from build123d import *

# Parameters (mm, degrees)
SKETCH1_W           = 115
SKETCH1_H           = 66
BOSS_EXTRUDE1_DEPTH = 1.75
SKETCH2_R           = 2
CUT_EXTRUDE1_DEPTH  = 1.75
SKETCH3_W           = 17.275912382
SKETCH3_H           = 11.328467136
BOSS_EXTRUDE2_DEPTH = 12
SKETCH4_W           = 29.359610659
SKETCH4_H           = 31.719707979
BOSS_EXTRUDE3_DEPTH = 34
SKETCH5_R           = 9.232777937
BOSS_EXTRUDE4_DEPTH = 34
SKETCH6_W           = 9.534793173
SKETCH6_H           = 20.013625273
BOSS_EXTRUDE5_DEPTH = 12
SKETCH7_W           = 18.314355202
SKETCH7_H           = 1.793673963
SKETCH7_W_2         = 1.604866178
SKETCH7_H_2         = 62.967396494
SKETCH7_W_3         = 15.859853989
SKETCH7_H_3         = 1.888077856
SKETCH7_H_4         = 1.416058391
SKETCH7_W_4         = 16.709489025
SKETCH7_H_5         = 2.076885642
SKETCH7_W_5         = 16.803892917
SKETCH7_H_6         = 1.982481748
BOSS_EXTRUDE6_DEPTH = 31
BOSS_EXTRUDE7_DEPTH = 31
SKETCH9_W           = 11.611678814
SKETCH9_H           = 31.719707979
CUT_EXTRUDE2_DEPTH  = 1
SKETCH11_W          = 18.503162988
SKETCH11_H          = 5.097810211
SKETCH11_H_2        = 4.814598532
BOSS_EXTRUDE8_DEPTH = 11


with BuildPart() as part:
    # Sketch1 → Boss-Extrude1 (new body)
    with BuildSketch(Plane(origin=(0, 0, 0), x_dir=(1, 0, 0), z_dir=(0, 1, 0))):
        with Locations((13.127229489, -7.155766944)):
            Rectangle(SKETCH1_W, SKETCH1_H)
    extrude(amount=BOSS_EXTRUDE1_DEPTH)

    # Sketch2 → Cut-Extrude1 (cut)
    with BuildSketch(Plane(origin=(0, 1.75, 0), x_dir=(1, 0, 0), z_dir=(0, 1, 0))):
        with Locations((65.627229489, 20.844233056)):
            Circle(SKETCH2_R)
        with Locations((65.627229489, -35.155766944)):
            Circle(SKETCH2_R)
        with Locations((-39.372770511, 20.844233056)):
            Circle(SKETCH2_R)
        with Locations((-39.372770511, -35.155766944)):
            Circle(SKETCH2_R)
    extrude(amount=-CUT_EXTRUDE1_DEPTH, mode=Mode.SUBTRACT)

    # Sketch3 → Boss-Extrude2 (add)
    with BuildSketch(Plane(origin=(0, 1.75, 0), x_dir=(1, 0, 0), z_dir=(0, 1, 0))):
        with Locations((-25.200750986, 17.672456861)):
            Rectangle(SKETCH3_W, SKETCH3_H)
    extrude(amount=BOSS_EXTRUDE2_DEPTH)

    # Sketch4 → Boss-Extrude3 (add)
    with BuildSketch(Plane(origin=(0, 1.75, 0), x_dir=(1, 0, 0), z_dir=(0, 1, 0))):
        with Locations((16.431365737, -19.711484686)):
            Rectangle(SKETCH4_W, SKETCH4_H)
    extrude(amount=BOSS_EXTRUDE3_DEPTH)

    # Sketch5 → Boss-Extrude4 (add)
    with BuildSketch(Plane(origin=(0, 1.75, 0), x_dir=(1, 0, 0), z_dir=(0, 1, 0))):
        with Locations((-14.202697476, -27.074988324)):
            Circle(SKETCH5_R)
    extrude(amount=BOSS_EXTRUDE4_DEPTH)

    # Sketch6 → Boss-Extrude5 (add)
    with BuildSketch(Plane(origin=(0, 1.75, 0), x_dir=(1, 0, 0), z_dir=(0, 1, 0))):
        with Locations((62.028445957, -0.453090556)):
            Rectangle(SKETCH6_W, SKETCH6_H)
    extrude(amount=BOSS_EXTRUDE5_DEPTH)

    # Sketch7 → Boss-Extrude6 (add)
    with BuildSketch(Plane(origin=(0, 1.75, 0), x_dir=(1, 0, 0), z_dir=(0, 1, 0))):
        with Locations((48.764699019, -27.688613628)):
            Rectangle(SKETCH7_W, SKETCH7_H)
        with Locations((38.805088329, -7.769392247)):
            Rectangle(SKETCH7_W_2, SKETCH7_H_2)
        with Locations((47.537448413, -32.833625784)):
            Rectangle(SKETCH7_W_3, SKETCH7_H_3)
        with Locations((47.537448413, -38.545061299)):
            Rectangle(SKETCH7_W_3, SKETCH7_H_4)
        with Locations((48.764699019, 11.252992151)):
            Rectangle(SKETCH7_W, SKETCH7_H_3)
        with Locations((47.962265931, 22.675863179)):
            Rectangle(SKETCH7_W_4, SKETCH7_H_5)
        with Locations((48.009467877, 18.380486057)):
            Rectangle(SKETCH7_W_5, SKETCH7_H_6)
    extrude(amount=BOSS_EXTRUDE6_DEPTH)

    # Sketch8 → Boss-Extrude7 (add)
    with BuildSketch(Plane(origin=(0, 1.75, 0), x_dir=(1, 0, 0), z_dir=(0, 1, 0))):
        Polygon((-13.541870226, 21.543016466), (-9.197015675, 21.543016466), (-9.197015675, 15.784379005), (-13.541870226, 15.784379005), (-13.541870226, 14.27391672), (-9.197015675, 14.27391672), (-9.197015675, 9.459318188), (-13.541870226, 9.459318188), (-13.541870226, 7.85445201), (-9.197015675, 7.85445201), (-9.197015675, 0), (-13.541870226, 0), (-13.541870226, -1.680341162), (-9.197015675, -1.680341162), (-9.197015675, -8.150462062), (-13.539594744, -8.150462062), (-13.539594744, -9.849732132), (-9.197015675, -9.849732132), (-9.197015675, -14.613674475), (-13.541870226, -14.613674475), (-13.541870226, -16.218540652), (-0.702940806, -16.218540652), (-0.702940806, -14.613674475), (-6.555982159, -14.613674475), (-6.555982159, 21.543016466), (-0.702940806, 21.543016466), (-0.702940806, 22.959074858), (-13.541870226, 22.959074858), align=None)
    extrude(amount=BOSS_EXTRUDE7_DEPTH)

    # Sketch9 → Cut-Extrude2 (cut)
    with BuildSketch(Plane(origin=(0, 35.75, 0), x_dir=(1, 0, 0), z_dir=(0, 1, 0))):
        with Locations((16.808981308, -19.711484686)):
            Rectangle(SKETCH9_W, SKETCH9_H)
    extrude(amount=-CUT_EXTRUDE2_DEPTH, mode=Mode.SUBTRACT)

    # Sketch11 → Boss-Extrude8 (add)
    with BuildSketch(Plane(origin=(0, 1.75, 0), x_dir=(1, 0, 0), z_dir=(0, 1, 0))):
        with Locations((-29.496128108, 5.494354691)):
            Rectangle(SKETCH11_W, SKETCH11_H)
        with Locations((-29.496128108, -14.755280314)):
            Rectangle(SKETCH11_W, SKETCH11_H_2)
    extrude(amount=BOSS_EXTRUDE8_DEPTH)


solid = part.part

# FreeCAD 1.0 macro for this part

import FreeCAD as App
import Part
import Sketcher
Q = App.Units.Quantity


def add_polygon(sketch, points):
    """Adds a closed chain of lines whose ends are joined by coincident constraints."""
    first, n = sketch.GeometryCount, len(points)
    for a, b in zip(points, points[1:] + points[:1]):
        sketch.addGeometry(Part.LineSegment(App.Vector(*a, 0), App.Vector(*b, 0)), False)
    for i in range(n):
        sketch.addConstraint(Sketcher.Constraint("Coincident", first + i, 2, first + (i + 1) % n, 1))

doc = App.newDocument("Part")
body = doc.addObject("PartDesign::Body", "Body")

# Sketch on XZ plane
sketch1 = doc.addObject("Sketcher::SketchObject", "Sketch")
body.addObject(sketch1)
sketch1.AttachmentSupport = (doc.XZ_Plane, [""])
sketch1.MapMode = "FlatFace"
add_polygon(sketch1, [(-44, -26), (-44, 40), (71, 40), (71, -26)])  # lines 0-3
sketch1.addConstraint([
    Sketcher.Constraint("Vertical", 0),
    Sketcher.Constraint("Horizontal", 1),
    Sketcher.Constraint("Vertical", 2),
    Sketcher.Constraint("Horizontal", 3),
    Sketcher.Constraint("DistanceX", 1, 1, 1, 2, Q("115 mm")),
    Sketcher.Constraint("DistanceY", 0, 1, 0, 2, Q("66 mm")),
    Sketcher.Constraint("DistanceX", 0, 2, -1, 1, Q("44.372771 mm")),
    Sketcher.Constraint("DistanceY", -1, 1, 0, 2, Q("40.155767 mm")),
])
pad1 = doc.addObject("PartDesign::Pad", "Pad")
body.addObject(pad1)
pad1.Profile = sketch1
pad1.Length = 1.75
pad1.Reversed = True

# Sketch on XZ plane
sketch2 = doc.addObject("Sketcher::SketchObject", "Sketch001")
body.addObject(sketch2)
sketch2.AttachmentSupport = (doc.XZ_Plane, [""])
sketch2.MapMode = "FlatFace"
sketch2.AttachmentOffset = App.Placement(App.Vector(0, 0, -1.75), App.Rotation())
sketch2.addGeometry([
    Part.Circle(App.Vector(65.6, -20.8, 0), App.Vector(0, 0, 1), 2),
    Part.Circle(App.Vector(65.6, 35.2, 0), App.Vector(0, 0, 1), 2),
    Part.Circle(App.Vector(-39.4, -20.8, 0), App.Vector(0, 0, 1), 2),
    Part.Circle(App.Vector(-39.4, 35.2, 0), App.Vector(0, 0, 1), 2),
], False)
sketch2.addConstraint([
    Sketcher.Constraint("Equal", 0, 1),
    Sketcher.Constraint("Equal", 1, 2),
    Sketcher.Constraint("Equal", 2, 3),
    Sketcher.Constraint("Horizontal", 0, 3, 2, 3),
    Sketcher.Constraint("Horizontal", 1, 3, 3, 3),
    Sketcher.Constraint("Vertical", 0, 3, 1, 3),
    Sketcher.Constraint("Vertical", 2, 3, 3, 3),
    Sketcher.Constraint("Diameter", 0, Q("4 mm")),
    Sketcher.Constraint("DistanceY", 0, 3, 1, 3, Q("56 mm")),
    Sketcher.Constraint("DistanceX", 2, 3, 0, 3, Q("105 mm")),
    Sketcher.Constraint("DistanceX", -1, 1, 0, 3, Q("65.627229 mm")),
    Sketcher.Constraint("DistanceY", 0, 3, -1, 1, Q("20.844233 mm")),
])
pocket1 = doc.addObject("PartDesign::Pocket", "Pocket")
body.addObject(pocket1)
pocket1.Profile = sketch2
pocket1.Length = 1.75
pocket1.Reversed = True

# Sketch on XZ plane
sketch3 = doc.addObject("Sketcher::SketchObject", "Sketch002")
body.addObject(sketch3)
sketch3.AttachmentSupport = (doc.XZ_Plane, [""])
sketch3.MapMode = "FlatFace"
sketch3.AttachmentOffset = App.Placement(App.Vector(0, 0, -1.75), App.Rotation())
add_polygon(sketch3, [(-34, -23), (-34, -12), (-17, -12), (-17, -23)])  # lines 0-3
sketch3.addConstraint([
    Sketcher.Constraint("Vertical", 0),
    Sketcher.Constraint("Horizontal", 1),
    Sketcher.Constraint("Vertical", 2),
    Sketcher.Constraint("Horizontal", 3),
    Sketcher.Constraint("DistanceX", 1, 1, 1, 2, Q("17.275912 mm")),
    Sketcher.Constraint("DistanceY", 0, 1, 0, 2, Q("11.328467 mm")),
    Sketcher.Constraint("DistanceY", 2, 2, -1, 1, Q("23.33669 mm")),
    Sketcher.Constraint("DistanceX", 0, 2, -1, 1, Q("33.838707 mm")),
])
pad2 = doc.addObject("PartDesign::Pad", "Pad001")
body.addObject(pad2)
pad2.Profile = sketch3
pad2.Length = 12
pad2.Reversed = True

# Sketch on XZ plane
sketch4 = doc.addObject("Sketcher::SketchObject", "Sketch003")
body.addObject(sketch4)
sketch4.AttachmentSupport = (doc.XZ_Plane, [""])
sketch4.MapMode = "FlatFace"
sketch4.AttachmentOffset = App.Placement(App.Vector(0, 0, -1.75), App.Rotation())
add_polygon(sketch4, [(2, 4), (2, 36), (31, 36), (31, 4)])  # lines 0-3
sketch4.addConstraint([
    Sketcher.Constraint("Vertical", 0),
    Sketcher.Constraint("Horizontal", 1),
    Sketcher.Constraint("Vertical", 2),
    Sketcher.Constraint("Horizontal", 3),
    Sketcher.Constraint("DistanceX", 1, 1, 1, 2, Q("29.359611 mm")),
    Sketcher.Constraint("DistanceY", 0, 1, 0, 2, Q("31.719708 mm")),
    Sketcher.Constraint("DistanceX", -1, 1, 0, 2, Q("1.75156 mm")),
    Sketcher.Constraint("DistanceY", -1, 1, 0, 2, Q("35.571339 mm")),
])
pad3 = doc.addObject("PartDesign::Pad", "Pad002")
body.addObject(pad3)
pad3.Profile = sketch4
pad3.Length = 34
pad3.Reversed = True

# Sketch on XZ plane
sketch5 = doc.addObject("Sketcher::SketchObject", "Sketch004")
body.addObject(sketch5)
sketch5.AttachmentSupport = (doc.XZ_Plane, [""])
sketch5.MapMode = "FlatFace"
sketch5.AttachmentOffset = App.Placement(App.Vector(0, 0, -1.75), App.Rotation())
sketch5.addGeometry(Part.Circle(App.Vector(-14, 27, 0), App.Vector(0, 0, 1), 9), False)
sketch5.addConstraint([
    Sketcher.Constraint("Diameter", 0, Q("18.465556 mm")),
    Sketcher.Constraint("DistanceY", -1, 1, 0, 3, Q("27.074988 mm")),
    Sketcher.Constraint("DistanceX", 0, 3, -1, 1, Q("14.202697 mm")),
])
pad4 = doc.addObject("PartDesign::Pad", "Pad003")
body.addObject(pad4)
pad4.Profile = sketch5
pad4.Length = 34
pad4.Reversed = True

# Sketch on XZ plane
sketch6 = doc.addObject("Sketcher::SketchObject", "Sketch005")
body.addObject(sketch6)
sketch6.AttachmentSupport = (doc.XZ_Plane, [""])
sketch6.MapMode = "FlatFace"
sketch6.AttachmentOffset = App.Placement(App.Vector(0, 0, -1.75), App.Rotation())
add_polygon(sketch6, [(57, -10), (57, 10), (67, 10), (67, -10)])  # lines 0-3
sketch6.addConstraint([
    Sketcher.Constraint("Vertical", 0),
    Sketcher.Constraint("Horizontal", 1),
    Sketcher.Constraint("Vertical", 2),
    Sketcher.Constraint("Horizontal", 3),
    Sketcher.Constraint("DistanceX", 1, 1, 1, 2, Q("9.534793 mm")),
    Sketcher.Constraint("DistanceY", 0, 1, 0, 2, Q("20.013625 mm")),
    Sketcher.Constraint("DistanceX", -1, 1, 0, 2, Q("57.261049 mm")),
    Sketcher.Constraint("DistanceY", -1, 1, 0, 2, Q("10.459903 mm")),
])
pad5 = doc.addObject("PartDesign::Pad", "Pad004")
body.addObject(pad5)
pad5.Profile = sketch6
pad5.Length = 12
pad5.Reversed = True

# Sketch on XZ plane
sketch7 = doc.addObject("Sketcher::SketchObject", "Sketch006")
body.addObject(sketch7)
sketch7.AttachmentSupport = (doc.XZ_Plane, [""])
sketch7.MapMode = "FlatFace"
sketch7.AttachmentOffset = App.Placement(App.Vector(0, 0, -1.75), App.Rotation())
add_polygon(sketch7, [(39.6, 28.6), (57.9, 28.6), (57.9, 26.8), (39.6, 26.8), (39.6, -10.3), (57.9, -10.3), (57.9, -12.2), (39.6, -12.2), (39.6, -17.4), (56.4, -17.4), (56.4, -19.4), (39.6, -19.4), (39.6, -21.6), (56.3, -21.6), (56.3, -23.7), (38, -23.7), (38, 39.3), (39.6, 39.3), (55.5, 39.3), (55.5, 37.8), (39.6, 37.8), (39.6, 33.8), (55.5, 33.8), (55.5, 31.9), (39.6, 31.9)])  # lines 0-24
sketch7.addConstraint([
    Sketcher.Constraint("Horizontal", 0),
    Sketcher.Constraint("Vertical", 1),
    Sketcher.Constraint("Horizontal", 2),
    Sketcher.Constraint("Vertical", 3),
    Sketcher.Constraint("Horizontal", 4),
    Sketcher.Constraint("Vertical", 5),
    Sketcher.Constraint("Horizontal", 6),
    Sketcher.Constraint("Vertical", 7),
    Sketcher.Constraint("Horizontal", 8),
    Sketcher.Constraint("Vertical", 9),
    Sketcher.Constraint("Horizontal", 10),
    Sketcher.Constraint("Vertical", 11),
    Sketcher.Constraint("Horizontal", 12),
    Sketcher.Constraint("Vertical", 13),
    Sketcher.Constraint("Horizontal", 14),
    Sketcher.Constraint("Vertical", 15),
    Sketcher.Constraint("Horizontal", 16),
    Sketcher.Constraint("Horizontal", 17),
    Sketcher.Constraint("Vertical", 18),
    Sketcher.Constraint("Horizontal", 19),
    Sketcher.Constraint("Vertical", 20),
    Sketcher.Constraint("Horizontal", 21),
    Sketcher.Constraint("Vertical", 22),
    Sketcher.Constraint("Horizontal", 23),
    Sketcher.Constraint("Vertical", 24),
    Sketcher.Constraint("Vertical", 1, 2, 4, 2),
    Sketcher.Constraint("Vertical", 3, 2, 6, 2),
    Sketcher.Constraint("Vertical", 7, 2, 10, 2),
    Sketcher.Constraint("Vertical", 11, 2, 16, 2),
    Sketcher.Constraint("Vertical", 16, 2, 19, 2),
    Sketcher.Constraint("Vertical", 18, 2, 21, 2),
    Sketcher.Constraint("Vertical", 20, 2, 23, 2),
    Sketcher.Constraint("Equal", 6, 14),
    Sketcher.Constraint("Equal", 5, 22),
    Sketcher.Constraint("DistanceX", 12, 1, 12, 2, Q("16.709489 mm")),
    Sketcher.Constraint("DistanceY", 3, 2, 3, 1, Q("37.10073 mm")),
    Sketcher.Constraint("DistanceY", 9, 2, 9, 1, Q("1.982482 mm")),
    Sketcher.Constraint("DistanceY", 18, 2, 18, 1, Q("1.416058 mm")),
    Sketcher.Constraint("DistanceX", 17, 2, 0, 2, Q("2.454501 mm")),
    Sketcher.Constraint("DistanceX", 0, 1, 0, 2, Q("18.314355 mm")),
    Sketcher.Constraint("DistanceX", 8, 1, 8, 2, Q("16.803893 mm")),
    Sketcher.Constraint("DistanceY", 1, 2, 1, 1, Q("1.793674 mm")),
    Sketcher.Constraint("DistanceY", 5, 2, 5, 1, Q("1.888078 mm")),
    Sketcher.Constraint("DistanceY", 7, 2, 7, 1, Q("5.192214 mm")),
    Sketcher.Constraint("DistanceY", 11, 2, 11, 1, Q("2.265693 mm")),
    Sketcher.Constraint("DistanceY", 13, 2, 13, 1, Q("2.076886 mm")),
    Sketcher.Constraint("DistanceY", 15, 1, 15, 2, Q("62.967396 mm")),
    Sketcher.Constraint("DistanceY", 20, 2, 20, 1, Q("4.059367 mm")),
    Sketcher.Constraint("DistanceY", -1, 1, 0, 2, Q("28.585451 mm")),
    Sketcher.Constraint("DistanceX", -1, 1, 2, 2, Q("39.607521 mm")),
])
pad6 = doc.addObject("PartDesign::Pad", "Pad005")
body.addObject(pad6)
pad6.Profile = sketch7
pad6.Length = 31
pad6.Reversed = True

# Sketch on XZ plane
sketch8 = doc.addObject("Sketcher::SketchObject", "Sketch007")
body.addObject(sketch8)
sketch8.AttachmentSupport = (doc.XZ_Plane, [""])
sketch8.MapMode = "FlatFace"
sketch8.AttachmentOffset = App.Placement(App.Vector(0, 0, -1.75), App.Rotation())
add_polygon(sketch8, [(-13.5, -21.5), (-9.2, -21.5), (-9.2, -15.8), (-13.5, -15.8), (-13.5, -14.3), (-9.2, -14.3), (-9.2, -9.5), (-13.5, -9.5), (-13.5, -7.9), (-9.2, -7.9), (-9.2, 0), (-13.5, 0), (-13.5, 1.7), (-9.2, 1.7), (-9.2, 8.2), (-13.5, 8.2), (-13.5, 9.8), (-9.2, 9.8), (-9.2, 14.6), (-13.5, 14.6), (-13.5, 16.2), (-0.7, 16.2), (-0.7, 14.6), (-6.6, 14.6), (-6.6, -21.5), (-0.7, -21.5), (-0.7, -23), (-13.5, -23)])  # lines 0-27
sketch8.addConstraint([
    Sketcher.Constraint("Horizontal", 0),
    Sketcher.Constraint("Vertical", 1),
    Sketcher.Constraint("Horizontal", 2),
    Sketcher.Constraint("Vertical", 3),
    Sketcher.Constraint("Horizontal", 4),
    Sketcher.Constraint("Vertical", 5),
    Sketcher.Constraint("Horizontal", 6),
    Sketcher.Constraint("Vertical", 7),
    Sketcher.Constraint("Horizontal", 8),
    Sketcher.Constraint("Vertical", 9),
    Sketcher.Constraint("Horizontal", 10),
    Sketcher.Constraint("Vertical", 11),
    Sketcher.Constraint("Horizontal", 12),
    Sketcher.Constraint("Vertical", 13),
    Sketcher.Constraint("Horizontal", 14),
    Sketcher.Constraint("Vertical", 15),
    Sketcher.Constraint("Horizontal", 16),
    Sketcher.Constraint("Vertical", 17),
    Sketcher.Constraint("Horizontal", 18),
    Sketcher.Constraint("Vertical", 19),
    Sketcher.Constraint("Horizontal", 20),
    Sketcher.Constraint("Vertical", 21),
    Sketcher.Constraint("Horizontal", 22),
    Sketcher.Constraint("Vertical", 23),
    Sketcher.Constraint("Horizontal", 24),
    Sketcher.Constraint("Vertical", 25),
    Sketcher.Constraint("Horizontal", 26),
    Sketcher.Constraint("Vertical", 27),
    Sketcher.Constraint("PointOnObject", 9, 2, -1),
    Sketcher.Constraint("Horizontal", 18, 2, 21, 2),
    Sketcher.Constraint("Horizontal", 0, 2, 23, 2),
    Sketcher.Constraint("Vertical", 1, 2, 4, 2),
    Sketcher.Constraint("Vertical", 3, 2, 6, 2),
    Sketcher.Constraint("Vertical", 5, 2, 8, 2),
    Sketcher.Constraint("Vertical", 7, 2, 10, 2),
    Sketcher.Constraint("Vertical", 9, 2, 12, 2),
    Sketcher.Constraint("Vertical", 13, 2, 16, 2),
    Sketcher.Constraint("Vertical", 11, 2, 18, 2),
    Sketcher.Constraint("Vertical", 21, 2, 24, 2),
    Sketcher.Constraint("Vertical", 19, 2, 26, 2),
    Sketcher.Constraint("Equal", 7, 19),
    Sketcher.Constraint("DistanceY", 5, 1, 5, 2, Q("4.814599 mm")),
    Sketcher.Constraint("DistanceX", 14, 2, 14, 1, Q("4.342579 mm")),
    Sketcher.Constraint("DistanceX", 20, 1, 20, 2, Q("12.838929 mm")),
    Sketcher.Constraint("DistanceX", 22, 2, 22, 1, Q("5.853041 mm")),
    Sketcher.Constraint("DistanceY", 11, 1, 11, 2, Q("1.680341 mm")),
    Sketcher.Constraint("DistanceY", 13, 1, 13, 2, Q("6.470121 mm")),
    Sketcher.Constraint("DistanceY", 15, 1, 15, 2, Q("1.69927 mm")),
    Sketcher.Constraint("DistanceY", 23, 2, 23, 1, Q("36.156691 mm")),
    Sketcher.Constraint("DistanceY", 25, 2, 25, 1, Q("1.416058 mm")),
    Sketcher.Constraint("DistanceY", 0, 2, 3, 2, Q("7.2691 mm")),
    Sketcher.Constraint("DistanceX", 0, 1, 0, 2, Q("4.344855 mm")),
    Sketcher.Constraint("DistanceY", 1, 1, 1, 2, Q("5.758637 mm")),
    Sketcher.Constraint("DistanceY", 7, 1, 7, 2, Q("1.604866 mm")),
    Sketcher.Constraint("DistanceY", 9, 1, 9, 2, Q("7.854452 mm")),
    Sketcher.Constraint("DistanceX", 2, 2, -1, 1, Q("13.54187 mm")),
])
pad7 = doc.addObject("PartDesign::Pad", "Pad006")
body.addObject(pad7)
pad7.Profile = sketch8
pad7.Length = 31
pad7.Reversed = True

# Sketch on XZ plane
sketch9 = doc.addObject("Sketcher::SketchObject", "Sketch008")
body.addObject(sketch9)
sketch9.AttachmentSupport = (doc.XZ_Plane, [""])
sketch9.MapMode = "FlatFace"
sketch9.AttachmentOffset = App.Placement(App.Vector(0, 0, -35.75), App.Rotation())
add_polygon(sketch9, [(11, 4), (11, 36), (23, 36), (23, 4)])  # lines 0-3
sketch9.addConstraint([
    Sketcher.Constraint("Vertical", 0),
    Sketcher.Constraint("Horizontal", 1),
    Sketcher.Constraint("Vertical", 2),
    Sketcher.Constraint("Horizontal", 3),
    Sketcher.Constraint("DistanceX", 1, 1, 1, 2, Q("11.611679 mm")),
    Sketcher.Constraint("DistanceY", 0, 1, 0, 2, Q("31.719708 mm")),
    Sketcher.Constraint("DistanceX", -1, 1, 0, 2, Q("11.003142 mm")),
    Sketcher.Constraint("DistanceY", -1, 1, 0, 2, Q("35.571339 mm")),
])
pocket2 = doc.addObject("PartDesign::Pocket", "Pocket001")
body.addObject(pocket2)
pocket2.Profile = sketch9
pocket2.Length = 1
pocket2.Reversed = True

# Sketch on XZ plane
sketch10 = doc.addObject("Sketcher::SketchObject", "Sketch009")
body.addObject(sketch10)
sketch10.AttachmentSupport = (doc.XZ_Plane, [""])
sketch10.MapMode = "FlatFace"
sketch10.AttachmentOffset = App.Placement(App.Vector(0, 0, -1.75), App.Rotation())
add_polygon(sketch10, [(-38.7, -8), (-38.7, -2.9), (-20.2, -2.9), (-20.2, -8)])  # lines 0-3
add_polygon(sketch10, [(-38.7, 12.3), (-38.7, 17.2), (-20.2, 17.2), (-20.2, 12.3)])  # lines 4-7
sketch10.addConstraint([
    Sketcher.Constraint("Vertical", 0),
    Sketcher.Constraint("Horizontal", 1),
    Sketcher.Constraint("Vertical", 2),
    Sketcher.Constraint("Horizontal", 3),
    Sketcher.Constraint("Vertical", 4),
    Sketcher.Constraint("Horizontal", 5),
    Sketcher.Constraint("Vertical", 6),
    Sketcher.Constraint("Horizontal", 7),
    Sketcher.Constraint("Vertical", 3, 2, 4, 2),
    Sketcher.Constraint("Vertical", 2, 2, 5, 2),
    Sketcher.Constraint("DistanceY", 4, 1, 4, 2, Q("4.814599 mm")),
    Sketcher.Constraint("DistanceY", 0, 1, 0, 2, Q("5.09781 mm")),
    Sketcher.Constraint("DistanceX", 1, 1, 1, 2, Q("18.503163 mm")),
    Sketcher.Constraint("DistanceX", 0, 2, -1, 1, Q("38.74771 mm")),
    Sketcher.Constraint("DistanceY", 0, 2, -1, 1, Q("2.94545 mm")),
    Sketcher.Constraint("DistanceY", -1, 1, 4, 2, Q("17.16258 mm")),
])
pad8 = doc.addObject("PartDesign::Pad", "Pad007")
body.addObject(pad8)
pad8.Profile = sketch10
pad8.Length = 11
pad8.Reversed = True

doc.recompute()
